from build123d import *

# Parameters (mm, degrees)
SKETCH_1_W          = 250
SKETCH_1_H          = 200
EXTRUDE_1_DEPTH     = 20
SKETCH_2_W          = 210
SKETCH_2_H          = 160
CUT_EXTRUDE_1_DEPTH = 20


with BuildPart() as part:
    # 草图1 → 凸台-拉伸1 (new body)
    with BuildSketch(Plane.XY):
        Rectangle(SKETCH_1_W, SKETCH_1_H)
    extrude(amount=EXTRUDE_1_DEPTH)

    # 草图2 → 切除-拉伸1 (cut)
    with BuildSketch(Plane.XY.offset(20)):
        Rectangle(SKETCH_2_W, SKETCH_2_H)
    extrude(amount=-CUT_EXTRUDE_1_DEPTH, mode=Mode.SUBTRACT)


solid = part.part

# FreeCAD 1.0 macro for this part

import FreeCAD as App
import Part
import Sketcher

doc = App.newDocument("Part")
body = doc.addObject("PartDesign::Body", "Body")

# Sketch on XY plane
sketch1 = body.newObject("Sketcher::SketchObject", "Sketch")
sketch1.AttachmentSupport = (doc.getObject("XY_Plane"), [""])
sketch1.MapMode = "FlatFace"
sketch1.addGeometry([
    Part.LineSegment(App.Vector(-125, 100, 0), App.Vector(-125, -100, 0)),
    Part.LineSegment(App.Vector(-125, -100, 0), App.Vector(125, -100, 0)),
    Part.LineSegment(App.Vector(125, -100, 0), App.Vector(125, 100, 0)),
    Part.LineSegment(App.Vector(125, 100, 0), App.Vector(-125, 100, 0)),
], False)
sketch1.addConstraint([
    Sketcher.Constraint("Coincident", 0, 2, 1, 1),
    Sketcher.Constraint("Coincident", 1, 2, 2, 1),
    Sketcher.Constraint("Coincident", 2, 2, 3, 1),
    Sketcher.Constraint("Coincident", 3, 2, 0, 1),
    Sketcher.Constraint("Vertical", 0),
    Sketcher.Constraint("Horizontal", 1),
    Sketcher.Constraint("Vertical", 2),
    Sketcher.Constraint("Horizontal", 3),
    Sketcher.Constraint("Symmetric", 0, 2, 2, 2, -1, 1),
    Sketcher.Constraint("DistanceX", 1, 1, 1, 2, 250.0),
    Sketcher.Constraint("DistanceY", 0, 2, 0, 1, 200.0),
])
pad1 = body.newObject("PartDesign::Pad", "Pad")
pad1.Profile = sketch1
pad1.Length = 20

# Sketch on XY plane
sketch2 = body.newObject("Sketcher::SketchObject", "Sketch001")
sketch2.AttachmentSupport = (doc.getObject("XY_Plane"), [""])
sketch2.MapMode = "FlatFace"
sketch2.AttachmentOffset = App.Placement(App.Vector(0, 0, 20), App.Rotation())
sketch2.addGeometry([
    Part.LineSegment(App.Vector(-105, 80, 0), App.Vector(-105, -80, 0)),
    Part.LineSegment(App.Vector(-105, -80, 0), App.Vector(105, -80, 0)),
    Part.LineSegment(App.Vector(105, -80, 0), App.Vector(105, 80, 0)),
    Part.LineSegment(App.Vector(105, 80, 0), App.Vector(-105, 80, 0)),
], False)
sketch2.addConstraint([
    Sketcher.Constraint("Coincident", 0, 2, 1, 1),
    Sketcher.Constraint("Coincident", 1, 2, 2, 1),
    Sketcher.Constraint("Coincident", 2, 2, 3, 1),
    Sketcher.Constraint("Coincident", 3, 2, 0, 1),
    Sketcher.Constraint("Vertical", 0),
    Sketcher.Constraint("Horizontal", 1),
    Sketcher.Constraint("Vertical", 2),
    Sketcher.Constraint("Horizontal", 3),
    Sketcher.Constraint("Symmetric", 0, 2, 2, 2, -1, 1),
    Sketcher.Constraint("DistanceX", 1, 1, 1, 2, 210.0),
    Sketcher.Constraint("DistanceY", 0, 2, 0, 1, 160.0),
])
pocket1 = body.newObject("PartDesign::Pocket", "Pocket")
pocket1.Profile = sketch2
pocket1.Length = 20

doc.recompute()
